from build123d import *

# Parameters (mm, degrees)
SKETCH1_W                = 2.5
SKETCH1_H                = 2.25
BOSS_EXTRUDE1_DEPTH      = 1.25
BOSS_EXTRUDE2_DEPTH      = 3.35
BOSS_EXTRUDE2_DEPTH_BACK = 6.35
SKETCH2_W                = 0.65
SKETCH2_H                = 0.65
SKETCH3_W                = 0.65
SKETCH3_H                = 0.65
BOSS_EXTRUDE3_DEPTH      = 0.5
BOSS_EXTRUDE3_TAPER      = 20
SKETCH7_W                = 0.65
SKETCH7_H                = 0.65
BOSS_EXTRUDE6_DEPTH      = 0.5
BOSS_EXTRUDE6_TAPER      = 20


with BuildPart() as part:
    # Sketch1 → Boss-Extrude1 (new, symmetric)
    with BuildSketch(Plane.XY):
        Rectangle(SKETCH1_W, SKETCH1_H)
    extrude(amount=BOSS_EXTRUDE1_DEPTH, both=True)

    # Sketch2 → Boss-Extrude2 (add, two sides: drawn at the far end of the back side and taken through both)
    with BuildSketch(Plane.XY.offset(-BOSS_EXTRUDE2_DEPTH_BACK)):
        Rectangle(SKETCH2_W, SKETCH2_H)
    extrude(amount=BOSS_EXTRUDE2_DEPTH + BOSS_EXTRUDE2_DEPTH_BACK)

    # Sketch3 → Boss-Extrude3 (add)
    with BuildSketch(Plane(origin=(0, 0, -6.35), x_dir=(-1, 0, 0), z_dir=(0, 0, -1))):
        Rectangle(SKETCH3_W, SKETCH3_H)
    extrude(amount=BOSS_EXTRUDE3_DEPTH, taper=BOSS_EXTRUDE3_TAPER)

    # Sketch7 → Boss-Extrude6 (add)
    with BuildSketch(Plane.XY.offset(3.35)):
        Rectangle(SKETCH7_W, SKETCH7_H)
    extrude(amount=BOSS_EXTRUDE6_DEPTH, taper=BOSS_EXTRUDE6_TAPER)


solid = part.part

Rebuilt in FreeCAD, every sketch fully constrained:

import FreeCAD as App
import Part
import Sketcher

doc = App.newDocument("Part")
body = doc.addObject("PartDesign::Body", "Body")

sketch1 = body.newObject("Sketcher::SketchObject", "Sketch")
sketch1.AttachmentSupport = (doc.getObject("XY_Plane"), [""])
sketch1.MapMode = "FlatFace"
sketch1.addGeometry([
    Part.LineSegment(App.Vector(-1.2, 1.1, 0), App.Vector(-1.2, -1.1, 0)),
    Part.LineSegment(App.Vector(-1.2, -1.1, 0), App.Vector(1.2, -1.1, 0)),
    Part.LineSegment(App.Vector(1.2, -1.1, 0), App.Vector(1.2, 1.1, 0)),
    Part.LineSegment(App.Vector(1.2, 1.1, 0), App.Vector(-1.2, 1.1, 0)),
], False)
sketch1.addConstraint([
    Sketcher.Constraint("Coincident", 0, 2, 1, 1),
    Sketcher.Constraint("Coincident", 1, 2, 2, 1),
    Sketcher.Constraint("Coincident", 2, 2, 3, 1),
    Sketcher.Constraint("Coincident", 3, 2, 0, 1),
    Sketcher.Constraint("Vertical", 0),
    Sketcher.Constraint("Horizontal", 1),
    Sketcher.Constraint("Vertical", 2),
    Sketcher.Constraint("Horizontal", 3),
    Sketcher.Constraint("Symmetric", 0, 2, 2, 2, -1, 1),
    Sketcher.Constraint("DistanceX", 1, 1, 1, 2, 2.5),
    Sketcher.Constraint("DistanceY", 0, 2, 0, 1, 2.25),
])
pad1 = body.newObject("PartDesign::Pad", "Pad")
pad1.Profile = sketch1
pad1.Length = 2.5
pad1.Midplane = True

sketch2 = body.newObject("Sketcher::SketchObject", "Sketch001")
sketch2.AttachmentSupport = (doc.getObject("XY_Plane"), [""])
sketch2.MapMode = "FlatFace"
sketch2.addGeometry([
    Part.LineSegment(App.Vector(-0.3, 0.3, 0), App.Vector(-0.3, -0.3, 0)),
    Part.LineSegment(App.Vector(-0.3, -0.3, 0), App.Vector(0.3, -0.3, 0)),
    Part.LineSegment(App.Vector(0.3, -0.3, 0), App.Vector(0.3, 0.3, 0)),
    Part.LineSegment(App.Vector(0.3, 0.3, 0), App.Vector(-0.3, 0.3, 0)),
], False)
sketch2.addConstraint([
    Sketcher.Constraint("Coincident", 0, 2, 1, 1),
    Sketcher.Constraint("Coincident", 1, 2, 2, 1),
    Sketcher.Constraint("Coincident", 2, 2, 3, 1),
    Sketcher.Constraint("Coincident", 3, 2, 0, 1),
    Sketcher.Constraint("Vertical", 0),
    Sketcher.Constraint("Horizontal", 1),
    Sketcher.Constraint("Vertical", 2),
    Sketcher.Constraint("Horizontal", 3),
    Sketcher.Constraint("Symmetric", 0, 2, 2, 2, -1, 1),
    Sketcher.Constraint("Equal", 3, 0),
    Sketcher.Constraint("DistanceX", 1, 1, 1, 2, 0.65),
])
pad2 = body.newObject("PartDesign::Pad", "Pad001")
pad2.Profile = sketch2
pad2.Type = "TwoLengths"
pad2.Length = 3.35
pad2.Length2 = 6.35

sketch3 = body.newObject("Sketcher::SketchObject", "Sketch002")
sketch3.AttachmentSupport = (doc.getObject("XY_Plane"), [""])
sketch3.MapMode = "FlatFace"
sketch3.AttachmentOffset = App.Placement(App.Vector(0, 0, -6.35), App.Rotation())
sketch3.addGeometry([
    Part.LineSegment(App.Vector(0.3, 0.3, 0), App.Vector(0.3, -0.3, 0)),
    Part.LineSegment(App.Vector(0.3, -0.3, 0), App.Vector(-0.3, -0.3, 0)),
    Part.LineSegment(App.Vector(-0.3, -0.3, 0), App.Vector(-0.3, 0.3, 0)),
    Part.LineSegment(App.Vector(-0.3, 0.3, 0), App.Vector(0.3, 0.3, 0)),
], False)
sketch3.addConstraint([
    Sketcher.Constraint("Coincident", 0, 2, 1, 1),
    Sketcher.Constraint("Coincident", 1, 2, 2, 1),
    Sketcher.Constraint("Coincident", 2, 2, 3, 1),
    Sketcher.Constraint("Coincident", 3, 2, 0, 1),
    Sketcher.Constraint("Vertical", 0),
    Sketcher.Constraint("Horizontal", 1),
    Sketcher.Constraint("Vertical", 2),
    Sketcher.Constraint("Horizontal", 3),
    Sketcher.Constraint("Symmetric", 0, 2, 2, 2, -1, 1),
    Sketcher.Constraint("Equal", 3, 0),
    Sketcher.Constraint("DistanceX", 1, 2, 1, 1, 0.65),
])
pad3 = body.newObject("PartDesign::Pad", "Pad002")
pad3.Profile = sketch3
pad3.Length = 0.5
pad3.Reversed = True
pad3.TaperAngle = -20

sketch4 = body.newObject("Sketcher::SketchObject", "Sketch003")
sketch4.AttachmentSupport = (doc.getObject("XY_Plane"), [""])
sketch4.MapMode = "FlatFace"
sketch4.AttachmentOffset = App.Placement(App.Vector(0, 0, 3.35), App.Rotation())
sketch4.addGeometry([
    Part.LineSegment(App.Vector(-0.3, 0.3, 0), App.Vector(-0.3, -0.3, 0)),
    Part.LineSegment(App.Vector(-0.3, -0.3, 0), App.Vector(0.3, -0.3, 0)),
    Part.LineSegment(App.Vector(0.3, -0.3, 0), App.Vector(0.3, 0.3, 0)),
    Part.LineSegment(App.Vector(0.3, 0.3, 0), App.Vector(-0.3, 0.3, 0)),
], False)
sketch4.addConstraint([
    Sketcher.Constraint("Coincident", 0, 2, 1, 1),
    Sketcher.Constraint("Coincident", 1, 2, 2, 1),
    Sketcher.Constraint("Coincident", 2, 2, 3, 1),
    Sketcher.Constraint("Coincident", 3, 2, 0, 1),
    Sketcher.Constraint("Vertical", 0),
    Sketcher.Constraint("Horizontal", 1),
    Sketcher.Constraint("Vertical", 2),
    Sketcher.Constraint("Horizontal", 3),
    Sketcher.Constraint("Symmetric", 0, 2, 2, 2, -1, 1),
    Sketcher.Constraint("Equal", 3, 0),
    Sketcher.Constraint("DistanceX", 1, 1, 1, 2, 0.65),
])
pad4 = body.newObject("PartDesign::Pad", "Pad003")
pad4.Profile = sketch4
pad4.Length = 0.5
pad4.TaperAngle = -20

doc.recompute()
